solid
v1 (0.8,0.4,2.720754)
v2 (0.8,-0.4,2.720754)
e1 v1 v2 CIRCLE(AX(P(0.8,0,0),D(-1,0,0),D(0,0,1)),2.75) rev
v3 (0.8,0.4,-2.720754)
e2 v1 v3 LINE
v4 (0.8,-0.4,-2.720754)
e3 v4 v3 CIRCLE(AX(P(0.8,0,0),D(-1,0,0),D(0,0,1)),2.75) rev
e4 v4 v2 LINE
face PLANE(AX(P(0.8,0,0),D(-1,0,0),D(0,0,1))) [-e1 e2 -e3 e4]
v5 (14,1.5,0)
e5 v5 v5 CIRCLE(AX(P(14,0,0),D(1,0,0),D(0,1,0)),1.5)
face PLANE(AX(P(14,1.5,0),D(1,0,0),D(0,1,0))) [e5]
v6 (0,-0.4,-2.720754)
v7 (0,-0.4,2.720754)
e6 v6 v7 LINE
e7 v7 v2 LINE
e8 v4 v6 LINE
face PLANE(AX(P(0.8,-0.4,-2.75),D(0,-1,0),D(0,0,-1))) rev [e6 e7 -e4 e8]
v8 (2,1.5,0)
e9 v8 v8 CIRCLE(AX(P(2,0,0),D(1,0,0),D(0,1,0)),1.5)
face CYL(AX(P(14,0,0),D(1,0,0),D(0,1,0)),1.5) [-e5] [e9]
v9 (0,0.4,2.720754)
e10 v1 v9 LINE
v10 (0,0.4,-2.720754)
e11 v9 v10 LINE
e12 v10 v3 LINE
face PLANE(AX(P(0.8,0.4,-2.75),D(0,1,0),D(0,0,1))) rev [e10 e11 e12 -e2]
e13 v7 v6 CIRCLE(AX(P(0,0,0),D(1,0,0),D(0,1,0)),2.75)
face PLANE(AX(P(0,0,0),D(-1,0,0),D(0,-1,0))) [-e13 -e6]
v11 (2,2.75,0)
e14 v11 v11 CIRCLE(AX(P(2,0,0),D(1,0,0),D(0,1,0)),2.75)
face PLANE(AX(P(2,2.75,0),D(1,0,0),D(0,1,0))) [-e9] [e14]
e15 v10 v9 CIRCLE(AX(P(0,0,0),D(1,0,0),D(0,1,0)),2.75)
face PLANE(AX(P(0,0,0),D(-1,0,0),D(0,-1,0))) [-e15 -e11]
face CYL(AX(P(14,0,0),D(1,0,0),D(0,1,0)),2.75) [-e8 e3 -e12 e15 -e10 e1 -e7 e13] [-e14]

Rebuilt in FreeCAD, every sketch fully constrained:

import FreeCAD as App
import Part
import Sketcher

V = App.Vector
Q = App.Units.Quantity

doc = App.newDocument("Part")
body = doc.addObject("PartDesign::Body", "Body")

# Sketch on XY plane
sketch1 = body.newObject("Sketcher::SketchObject", "Sketch")
sketch1.AttachmentSupport = (doc.getObject("XY_Plane"), [""])
sketch1.MapMode = "FlatFace"
sketch1.addGeometry([
    Part.LineSegment(V(0, 2.8, 0), V(0, 0, 0)),  # 0
    Part.LineSegment(V(0, 0, 0), V(14, 0, 0)),  # 1
    Part.LineSegment(V(14, 0, 0), V(14, 1.5, 0)),  # 2
    Part.LineSegment(V(14, 1.5, 0), V(2, 1.5, 0)),  # 3
    Part.LineSegment(V(2, 1.5, 0), V(2, 2.8, 0)),  # 4
    Part.LineSegment(V(2, 2.8, 0), V(0, 2.8, 0)),  # 5
], False)
sketch1.addConstraint([
    Sketcher.Constraint("Coincident", 0, 2, 1, 1),
    Sketcher.Constraint("Coincident", 1, 2, 2, 1),
    Sketcher.Constraint("Coincident", 2, 2, 3, 1),
    Sketcher.Constraint("Coincident", 3, 2, 4, 1),
    Sketcher.Constraint("Coincident", 4, 2, 5, 1),
    Sketcher.Constraint("Coincident", 5, 2, 0, 1),
    Sketcher.Constraint("Vertical", 0),
    Sketcher.Constraint("Horizontal", 1),
    Sketcher.Constraint("Vertical", 2),
    Sketcher.Constraint("Horizontal", 3),
    Sketcher.Constraint("Vertical", 4),
    Sketcher.Constraint("Horizontal", 5),
    Sketcher.Constraint("Coincident", 0, 2, -1, 1),
    Sketcher.Constraint("DistanceX", 1, 1, 1, 2, Q("14 mm")),
    Sketcher.Constraint("DistanceX", 3, 2, 3, 1, Q("12 mm")),
    Sketcher.Constraint("DistanceY", 2, 1, 2, 2, Q("1.5 mm")),
    Sketcher.Constraint("DistanceY", 0, 2, 0, 1, Q("2.75 mm")),
])
revolution = body.newObject("PartDesign::Revolution", "Revolution")
revolution.Profile = sketch1
revolution.ReferenceAxis = (sketch1, ["H_Axis"])
revolution.Angle = 360

# Sketch on YZ plane
sketch2 = body.newObject("Sketcher::SketchObject", "Sketch001")
sketch2.AttachmentSupport = (doc.getObject("YZ_Plane"), [""])
sketch2.MapMode = "FlatFace"
sketch2.addGeometry([
    Part.LineSegment(V(0.4, -2.8, 0), V(-0.4, -2.8, 0)),
    Part.LineSegment(V(-0.4, -2.8, 0), V(-0.4, 2.8, 0)),
    Part.LineSegment(V(-0.4, 2.8, 0), V(0.4, 2.8, 0)),
    Part.LineSegment(V(0.4, 2.8, 0), V(0.4, -2.8, 0)),
], False)
sketch2.addConstraint([
    Sketcher.Constraint("Coincident", 0, 2, 1, 1),
    Sketcher.Constraint("Coincident", 1, 2, 2, 1),
    Sketcher.Constraint("Coincident", 2, 2, 3, 1),
    Sketcher.Constraint("Coincident", 3, 2, 0, 1),
    Sketcher.Constraint("Horizontal", 0),
    Sketcher.Constraint("Vertical", 1),
    Sketcher.Constraint("Horizontal", 2),
    Sketcher.Constraint("Vertical", 3),
    Sketcher.Constraint("Symmetric", 0, 2, 2, 2, -1, 1),
    Sketcher.Constraint("DistanceX", 0, 2, 0, 1, Q("0.8 mm")),
    Sketcher.Constraint("DistanceY", 1, 1, 1, 2, Q("5.5 mm")),
])
pocket1 = body.newObject("PartDesign::Pocket", "Pocket")
pocket1.Profile = sketch2
pocket1.Length = 0.8
pocket1.Reversed = True

doc.recompute()
